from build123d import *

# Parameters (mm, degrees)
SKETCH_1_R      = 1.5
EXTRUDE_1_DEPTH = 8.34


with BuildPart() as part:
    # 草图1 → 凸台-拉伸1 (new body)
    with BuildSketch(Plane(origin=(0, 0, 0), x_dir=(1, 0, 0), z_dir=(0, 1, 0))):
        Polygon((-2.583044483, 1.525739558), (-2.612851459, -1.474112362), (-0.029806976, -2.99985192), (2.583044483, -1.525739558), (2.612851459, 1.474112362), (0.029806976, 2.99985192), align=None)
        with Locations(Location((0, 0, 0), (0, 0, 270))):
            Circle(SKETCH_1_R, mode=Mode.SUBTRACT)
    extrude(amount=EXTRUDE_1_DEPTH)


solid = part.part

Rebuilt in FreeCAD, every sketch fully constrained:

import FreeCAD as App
import Part
import Sketcher
from FreeCAD import Vector
Q = App.Units.Quantity


def add_polygon(sketch, points):
    """Adds a closed chain of lines whose ends are joined by coincident constraints."""
    first, n = sketch.GeometryCount, len(points)
    for a, b in zip(points, points[1:] + points[:1]):
        sketch.addGeometry(Part.LineSegment(App.Vector(*a, 0), App.Vector(*b, 0)), False)
    for i in range(n):
        sketch.addConstraint(Sketcher.Constraint("Coincident", first + i, 2, first + (i + 1) % n, 1))

doc = App.newDocument("Part")
body = doc.addObject("PartDesign::Body", "Body")

# Sketch on XZ plane
sketch1 = body.newObject("Sketcher::SketchObject", "Sketch")
sketch1.AttachmentSupport = (doc.getObject("XZ_Plane"), [""])
sketch1.MapMode = "FlatFace"
add_polygon(sketch1, [(-2.6, -1.5), (-2.6, 1.5), (0, 3), (2.6, 1.5), (2.6, -1.5), (0, -3)])  # lines 0-5
sketch1.addGeometry(Part.Circle(Vector(0, 0, 0), Vector(0, 0, 1), 1.5), False)  # 6
sketch1.addConstraint(Sketcher.Constraint("Coincident", 6, 3, -1, 1))
sketch1.addConstraint(Sketcher.Constraint("Symmetric", 0, 2, 3, 2, -1, 1))
sketch1.addConstraint(Sketcher.Constraint("Symmetric", 1, 2, 4, 2, -1, 1))
sketch1.addConstraint(Sketcher.Constraint("Symmetric", 2, 2, 5, 2, -1, 1))
sketch1.addConstraint(Sketcher.Constraint("Equal", 0, 1))
sketch1.addConstraint(Sketcher.Constraint("Equal", 1, 2))
sketch1.addConstraint(Sketcher.Constraint("Diameter", 6, Q("3 mm")))
sketch1.addConstraint(Sketcher.Constraint("Distance", 0, Q("3 mm")))
sketch1.addConstraint(Sketcher.Constraint("DistanceX", 0, 2, -1, 1, Q("2.612851 mm")))
sketch1.addConstraint(Sketcher.Constraint("DistanceY", -1, 1, 1, 2, Q("2.999852 mm")))
sketch1.addConstraint(Sketcher.Constraint("DistanceY", -1, 1, 2, 2, Q("1.52574 mm")))
pad1 = body.newObject("PartDesign::Pad", "Pad")
pad1.Profile = sketch1
pad1.Length = 8.34
pad1.Reversed = True

doc.recompute()
